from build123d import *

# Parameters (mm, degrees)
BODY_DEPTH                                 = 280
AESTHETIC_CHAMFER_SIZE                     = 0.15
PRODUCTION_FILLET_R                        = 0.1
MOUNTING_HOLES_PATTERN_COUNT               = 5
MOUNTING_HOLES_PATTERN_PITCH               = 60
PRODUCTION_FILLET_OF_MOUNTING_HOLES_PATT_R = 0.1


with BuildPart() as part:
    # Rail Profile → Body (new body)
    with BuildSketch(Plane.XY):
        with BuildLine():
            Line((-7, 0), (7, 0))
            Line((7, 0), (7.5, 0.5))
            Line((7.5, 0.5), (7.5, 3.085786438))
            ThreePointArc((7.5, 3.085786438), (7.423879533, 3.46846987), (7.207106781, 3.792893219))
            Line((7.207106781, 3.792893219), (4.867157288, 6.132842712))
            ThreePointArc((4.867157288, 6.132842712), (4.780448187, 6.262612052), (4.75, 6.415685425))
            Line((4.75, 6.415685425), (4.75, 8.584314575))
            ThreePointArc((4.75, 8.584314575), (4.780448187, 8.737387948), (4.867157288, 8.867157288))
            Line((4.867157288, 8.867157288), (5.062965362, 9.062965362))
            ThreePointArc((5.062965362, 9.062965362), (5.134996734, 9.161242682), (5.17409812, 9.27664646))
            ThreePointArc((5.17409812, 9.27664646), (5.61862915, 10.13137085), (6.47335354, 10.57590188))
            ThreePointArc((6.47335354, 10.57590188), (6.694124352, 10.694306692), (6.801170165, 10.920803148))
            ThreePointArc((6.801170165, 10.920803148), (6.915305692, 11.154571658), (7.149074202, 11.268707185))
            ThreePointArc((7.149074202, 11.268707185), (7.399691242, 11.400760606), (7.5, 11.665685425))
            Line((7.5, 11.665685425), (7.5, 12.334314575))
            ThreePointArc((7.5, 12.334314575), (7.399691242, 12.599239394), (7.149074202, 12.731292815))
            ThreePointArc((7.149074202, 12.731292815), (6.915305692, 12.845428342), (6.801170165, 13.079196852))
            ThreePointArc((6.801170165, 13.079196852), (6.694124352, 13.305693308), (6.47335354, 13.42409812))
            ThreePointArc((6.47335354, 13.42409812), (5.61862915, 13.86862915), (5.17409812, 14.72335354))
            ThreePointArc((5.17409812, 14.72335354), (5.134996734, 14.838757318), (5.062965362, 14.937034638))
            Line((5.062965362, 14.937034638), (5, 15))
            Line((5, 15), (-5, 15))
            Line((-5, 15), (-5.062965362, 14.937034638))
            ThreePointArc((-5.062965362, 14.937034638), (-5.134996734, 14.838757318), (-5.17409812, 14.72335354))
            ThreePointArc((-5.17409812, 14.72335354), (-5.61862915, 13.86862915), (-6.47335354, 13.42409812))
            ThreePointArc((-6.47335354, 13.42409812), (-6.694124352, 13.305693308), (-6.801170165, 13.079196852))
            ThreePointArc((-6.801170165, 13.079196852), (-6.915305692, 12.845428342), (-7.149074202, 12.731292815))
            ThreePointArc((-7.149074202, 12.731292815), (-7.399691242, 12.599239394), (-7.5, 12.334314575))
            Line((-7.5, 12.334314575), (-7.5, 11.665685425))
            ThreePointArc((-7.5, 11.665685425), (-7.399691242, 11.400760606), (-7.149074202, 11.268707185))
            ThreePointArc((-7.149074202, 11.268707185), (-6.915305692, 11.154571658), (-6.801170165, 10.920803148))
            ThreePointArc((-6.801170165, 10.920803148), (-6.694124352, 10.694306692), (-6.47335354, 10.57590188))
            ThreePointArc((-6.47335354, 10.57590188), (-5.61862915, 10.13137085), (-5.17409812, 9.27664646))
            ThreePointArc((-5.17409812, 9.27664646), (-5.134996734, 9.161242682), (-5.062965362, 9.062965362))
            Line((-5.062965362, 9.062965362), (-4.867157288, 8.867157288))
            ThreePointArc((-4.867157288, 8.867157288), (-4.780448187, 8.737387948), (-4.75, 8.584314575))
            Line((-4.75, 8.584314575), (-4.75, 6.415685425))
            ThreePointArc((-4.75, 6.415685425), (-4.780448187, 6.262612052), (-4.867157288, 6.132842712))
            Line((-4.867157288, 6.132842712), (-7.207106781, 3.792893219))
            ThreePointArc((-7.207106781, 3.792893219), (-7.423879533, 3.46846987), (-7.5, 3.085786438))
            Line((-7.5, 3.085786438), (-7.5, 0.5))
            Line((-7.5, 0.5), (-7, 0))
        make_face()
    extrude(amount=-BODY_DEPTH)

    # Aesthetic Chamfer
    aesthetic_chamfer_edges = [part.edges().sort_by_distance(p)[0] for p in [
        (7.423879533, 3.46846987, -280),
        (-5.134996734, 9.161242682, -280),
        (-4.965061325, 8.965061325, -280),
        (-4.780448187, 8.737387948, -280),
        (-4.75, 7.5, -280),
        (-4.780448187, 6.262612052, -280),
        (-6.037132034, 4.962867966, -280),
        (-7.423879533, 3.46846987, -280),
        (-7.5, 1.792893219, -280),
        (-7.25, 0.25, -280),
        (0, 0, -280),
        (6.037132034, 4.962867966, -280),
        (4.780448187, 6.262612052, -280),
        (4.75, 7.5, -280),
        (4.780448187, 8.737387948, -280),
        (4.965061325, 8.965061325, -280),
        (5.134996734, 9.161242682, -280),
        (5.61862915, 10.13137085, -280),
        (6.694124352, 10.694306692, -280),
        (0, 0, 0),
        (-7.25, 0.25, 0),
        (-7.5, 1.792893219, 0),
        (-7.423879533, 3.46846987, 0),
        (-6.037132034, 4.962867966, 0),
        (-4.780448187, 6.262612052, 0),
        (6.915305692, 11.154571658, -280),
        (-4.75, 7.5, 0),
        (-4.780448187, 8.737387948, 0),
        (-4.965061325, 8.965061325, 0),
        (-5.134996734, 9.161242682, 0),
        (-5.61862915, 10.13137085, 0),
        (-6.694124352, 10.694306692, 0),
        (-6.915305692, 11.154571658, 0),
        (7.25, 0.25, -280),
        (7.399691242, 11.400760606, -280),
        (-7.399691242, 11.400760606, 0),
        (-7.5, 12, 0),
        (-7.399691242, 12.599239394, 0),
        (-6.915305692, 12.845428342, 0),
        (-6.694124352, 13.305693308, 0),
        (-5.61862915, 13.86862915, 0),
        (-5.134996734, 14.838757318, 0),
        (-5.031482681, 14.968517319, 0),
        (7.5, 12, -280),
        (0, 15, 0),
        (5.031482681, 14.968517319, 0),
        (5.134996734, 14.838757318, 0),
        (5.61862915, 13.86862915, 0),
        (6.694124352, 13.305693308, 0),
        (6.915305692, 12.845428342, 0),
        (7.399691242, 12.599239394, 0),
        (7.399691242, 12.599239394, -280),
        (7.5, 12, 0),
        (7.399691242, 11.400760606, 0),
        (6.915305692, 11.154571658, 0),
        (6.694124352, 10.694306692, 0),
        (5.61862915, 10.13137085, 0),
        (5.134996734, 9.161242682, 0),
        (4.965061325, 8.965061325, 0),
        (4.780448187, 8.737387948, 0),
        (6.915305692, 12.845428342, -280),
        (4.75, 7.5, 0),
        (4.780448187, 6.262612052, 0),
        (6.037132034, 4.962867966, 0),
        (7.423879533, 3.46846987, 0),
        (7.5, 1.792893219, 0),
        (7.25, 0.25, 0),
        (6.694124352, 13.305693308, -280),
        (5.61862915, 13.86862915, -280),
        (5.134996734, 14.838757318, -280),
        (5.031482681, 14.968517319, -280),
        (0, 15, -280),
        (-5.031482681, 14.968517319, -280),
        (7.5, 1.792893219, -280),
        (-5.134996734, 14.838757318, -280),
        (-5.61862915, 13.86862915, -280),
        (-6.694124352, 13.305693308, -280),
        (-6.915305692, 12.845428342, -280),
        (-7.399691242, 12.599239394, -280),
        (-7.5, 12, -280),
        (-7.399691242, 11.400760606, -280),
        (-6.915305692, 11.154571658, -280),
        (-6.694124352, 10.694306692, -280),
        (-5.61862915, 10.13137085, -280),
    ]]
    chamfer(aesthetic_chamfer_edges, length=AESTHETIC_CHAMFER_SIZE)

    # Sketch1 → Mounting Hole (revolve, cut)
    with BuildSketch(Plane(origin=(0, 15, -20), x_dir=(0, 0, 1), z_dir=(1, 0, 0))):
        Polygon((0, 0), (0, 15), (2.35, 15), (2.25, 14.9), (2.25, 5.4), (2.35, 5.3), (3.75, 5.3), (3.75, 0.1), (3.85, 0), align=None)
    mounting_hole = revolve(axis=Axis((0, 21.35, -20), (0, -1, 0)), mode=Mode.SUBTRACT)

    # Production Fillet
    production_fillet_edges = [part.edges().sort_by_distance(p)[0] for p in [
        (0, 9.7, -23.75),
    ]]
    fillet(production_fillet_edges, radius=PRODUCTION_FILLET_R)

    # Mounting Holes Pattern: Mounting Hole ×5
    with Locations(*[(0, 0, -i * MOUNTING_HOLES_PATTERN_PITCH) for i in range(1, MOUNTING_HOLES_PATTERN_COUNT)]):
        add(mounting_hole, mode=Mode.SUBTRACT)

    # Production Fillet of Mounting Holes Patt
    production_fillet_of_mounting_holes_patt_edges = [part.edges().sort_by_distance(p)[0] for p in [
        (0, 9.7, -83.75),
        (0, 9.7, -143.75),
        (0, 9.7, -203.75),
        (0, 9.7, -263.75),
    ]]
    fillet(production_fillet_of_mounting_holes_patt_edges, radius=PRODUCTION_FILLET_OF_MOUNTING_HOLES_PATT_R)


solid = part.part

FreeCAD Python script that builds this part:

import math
import FreeCAD as App
import Part
import Sketcher
from FreeCAD import Vector
Q = App.Units.Quantity


def edges_at(feature, points):
    """Names of the edges that pass closest to the given points."""
    edges = feature.Shape.Edges
    near = lambda p: min(range(len(edges)), key=lambda i: edges[i].distToShape(Part.Vertex(*p))[0])
    return sorted({f"Edge{near(p) + 1}" for p in points})


def add_polygon(sketch, points):
    """Adds a closed chain of lines whose ends are joined by coincident constraints."""
    first, n = sketch.GeometryCount, len(points)
    for a, b in zip(points, points[1:] + points[:1]):
        sketch.addGeometry(Part.LineSegment(App.Vector(*a, 0), App.Vector(*b, 0)), False)
    for i in range(n):
        sketch.addConstraint(Sketcher.Constraint("Coincident", first + i, 2, first + (i + 1) % n, 1))

doc = App.newDocument("Part")
body = doc.addObject("PartDesign::Body", "Body")

# Sketch on XY plane
sketch1 = body.newObject("Sketcher::SketchObject", "Sketch")
sketch1.AttachmentSupport = (doc.getObject("XY_Plane"), [""])
sketch1.MapMode = "FlatFace"
sketch1.addGeometry([
    Part.LineSegment(Vector(-7, 0, 0), Vector(7, 0, 0)),  # 0
    Part.LineSegment(Vector(7, 0, 0), Vector(7.5, 0.5, 0)),  # 1
    Part.LineSegment(Vector(7.5, 0.5, 0), Vector(7.5, 3.085786, 0)),  # 2
    Part.ArcOfCircle(Part.Circle(Vector(6.5, 3.085786, 0), Vector(0, 0, 1), 1), math.radians(0), math.radians(45)),  # 3
    Part.LineSegment(Vector(7.207107, 3.792893, 0), Vector(4.867157, 6.132843, 0)),  # 4
    Part.ArcOfCircle(Part.Circle(Vector(5.15, 6.415685, 0), Vector(0, 0, 1), 0.4), math.radians(180), math.radians(225)),  # 5
    Part.LineSegment(Vector(4.75, 6.415685, 0), Vector(4.75, 8.584315, 0)),  # 6
    Part.ArcOfCircle(Part.Circle(Vector(5.15, 8.584315, 0), Vector(0, 0, 1), 0.4), math.radians(135), math.radians(180)),  # 7
    Part.LineSegment(Vector(4.867157, 8.867157, 0), Vector(5.062965, 9.062965, 0)),  # 8
    Part.ArcOfCircle(Part.Circle(Vector(4.780123, 9.345808, 0), Vector(0, 0, 1), 0.4), math.radians(-45), math.radians(-9.956709)),  # 9
    Part.ArcOfCircle(Part.Circle(Vector(6.75, 9, 0), Vector(0, 0, 1), 1.6), math.radians(99.956709), math.radians(170.043291)),  # 10
    Part.ArcOfCircle(Part.Circle(Vector(6.404192, 10.969877, 0), Vector(0, 0, 1), 0.4), math.radians(-80.043291), math.radians(-7.047116)),  # 11
    Part.ArcOfCircle(Part.Circle(Vector(7.198148, 10.871729, 0), Vector(0, 0, 1), 0.4), math.radians(97.047116), math.radians(172.952884)),  # 12
    Part.ArcOfCircle(Part.Circle(Vector(7.1, 11.665685, 0), Vector(0, 0, 1), 0.4), math.radians(-82.952884), math.radians(0)),  # 13
    Part.LineSegment(Vector(7.5, 11.665685, 0), Vector(7.5, 12.334315, 0)),  # 14
    Part.ArcOfCircle(Part.Circle(Vector(7.1, 12.334315, 0), Vector(0, 0, 1), 0.4), math.radians(0), math.radians(82.952884)),  # 15
    Part.ArcOfCircle(Part.Circle(Vector(7.198148, 13.128271, 0), Vector(0, 0, 1), 0.4), math.radians(-172.952884), math.radians(-97.047116)),  # 16
    Part.ArcOfCircle(Part.Circle(Vector(6.404192, 13.030123, 0), Vector(0, 0, 1), 0.4), math.radians(7.047116), math.radians(80.043291)),  # 17
    Part.ArcOfCircle(Part.Circle(Vector(6.75, 15, 0), Vector(0, 0, 1), 1.6), math.radians(-170.043291), math.radians(-99.956709)),  # 18
    Part.ArcOfCircle(Part.Circle(Vector(4.780123, 14.654192, 0), Vector(0, 0, 1), 0.4), math.radians(9.956709), math.radians(45)),  # 19
    Part.LineSegment(Vector(5.062965, 14.937035, 0), Vector(5, 15, 0)),  # 20
    Part.LineSegment(Vector(5, 15, 0), Vector(-5, 15, 0)),  # 21
    Part.LineSegment(Vector(-5, 15, 0), Vector(-5.062965, 14.937035, 0)),  # 22
    Part.ArcOfCircle(Part.Circle(Vector(-4.780123, 14.654192, 0), Vector(0, 0, 1), 0.4), math.radians(135), math.radians(170.043291)),  # 23
    Part.ArcOfCircle(Part.Circle(Vector(-6.75, 15, 0), Vector(0, 0, 1), 1.6), math.radians(-80.043291), math.radians(-9.956709)),  # 24
    Part.ArcOfCircle(Part.Circle(Vector(-6.404192, 13.030123, 0), Vector(0, 0, 1), 0.4), math.radians(99.956709), math.radians(172.952884)),  # 25
    Part.ArcOfCircle(Part.Circle(Vector(-7.198148, 13.128271, 0), Vector(0, 0, 1), 0.4), math.radians(-82.952884), math.radians(-7.047116)),  # 26
    Part.ArcOfCircle(Part.Circle(Vector(-7.1, 12.334315, 0), Vector(0, 0, 1), 0.4), math.radians(97.047116), math.radians(180)),  # 27
    Part.LineSegment(Vector(-7.5, 12.334315, 0), Vector(-7.5, 11.665685, 0)),  # 28
    Part.ArcOfCircle(Part.Circle(Vector(-7.1, 11.665685, 0), Vector(0, 0, 1), 0.4), math.radians(180), math.radians(262.952884)),  # 29
    Part.ArcOfCircle(Part.Circle(Vector(-7.198148, 10.871729, 0), Vector(0, 0, 1), 0.4), math.radians(7.047116), math.radians(82.952884)),  # 30
    Part.ArcOfCircle(Part.Circle(Vector(-6.404192, 10.969877, 0), Vector(0, 0, 1), 0.4), math.radians(-172.952884), math.radians(-99.956709)),  # 31
    Part.ArcOfCircle(Part.Circle(Vector(-6.75, 9, 0), Vector(0, 0, 1), 1.6), math.radians(9.956709), math.radians(80.043291)),  # 32
    Part.ArcOfCircle(Part.Circle(Vector(-4.780123, 9.345808, 0), Vector(0, 0, 1), 0.4), math.radians(-170.043291), math.radians(-135)),  # 33
    Part.LineSegment(Vector(-5.062965, 9.062965, 0), Vector(-4.867157, 8.867157, 0)),  # 34
    Part.ArcOfCircle(Part.Circle(Vector(-5.15, 8.584315, 0), Vector(0, 0, 1), 0.4), math.radians(0), math.radians(45)),  # 35
    Part.LineSegment(Vector(-4.75, 8.584315, 0), Vector(-4.75, 6.415685, 0)),  # 36
    Part.ArcOfCircle(Part.Circle(Vector(-5.15, 6.415685, 0), Vector(0, 0, 1), 0.4), math.radians(-45), math.radians(0)),  # 37
    Part.LineSegment(Vector(-4.867157, 6.132843, 0), Vector(-7.207107, 3.792893, 0)),  # 38
    Part.ArcOfCircle(Part.Circle(Vector(-6.5, 3.085786, 0), Vector(0, 0, 1), 1), math.radians(135), math.radians(180)),  # 39
    Part.LineSegment(Vector(-7.5, 3.085786, 0), Vector(-7.5, 0.5, 0)),  # 40
    Part.LineSegment(Vector(-7.5, 0.5, 0), Vector(-7, 0, 0)),  # 41
], False)
sketch1.addConstraint([
    Sketcher.Constraint("Coincident", 0, 2, 1, 1),
    Sketcher.Constraint("Coincident", 1, 2, 2, 1),
    Sketcher.Constraint("Tangent", 2, 2, 3, 1),
    Sketcher.Constraint("Tangent", 3, 2, 4, 1),
    Sketcher.Constraint("Tangent", 4, 2, 5, 2),
    Sketcher.Constraint("Tangent", 5, 1, 6, 1),
    Sketcher.Constraint("Tangent", 6, 2, 7, 2),
    Sketcher.Constraint("Tangent", 7, 1, 8, 1),
    Sketcher.Constraint("Tangent", 8, 2, 9, 1),
    Sketcher.Constraint("Tangent", 9, 2, 10, 2),
    Sketcher.Constraint("Tangent", 10, 1, 11, 1),
    Sketcher.Constraint("Tangent", 11, 2, 12, 2),
    Sketcher.Constraint("Tangent", 12, 1, 13, 1),
    Sketcher.Constraint("Tangent", 13, 2, 14, 1),
    Sketcher.Constraint("Tangent", 14, 2, 15, 1),
    Sketcher.Constraint("Tangent", 15, 2, 16, 2),
    Sketcher.Constraint("Tangent", 16, 1, 17, 1),
    Sketcher.Constraint("Tangent", 17, 2, 18, 2),
    Sketcher.Constraint("Tangent", 18, 1, 19, 1),
    Sketcher.Constraint("Tangent", 19, 2, 20, 1),
    Sketcher.Constraint("Coincident", 20, 2, 21, 1),
    Sketcher.Constraint("Coincident", 21, 2, 22, 1),
    Sketcher.Constraint("Tangent", 22, 2, 23, 1),
    Sketcher.Constraint("Tangent", 23, 2, 24, 2),
    Sketcher.Constraint("Tangent", 24, 1, 25, 1),
    Sketcher.Constraint("Tangent", 25, 2, 26, 2),
    Sketcher.Constraint("Tangent", 26, 1, 27, 1),
    Sketcher.Constraint("Tangent", 27, 2, 28, 1),
    Sketcher.Constraint("Tangent", 28, 2, 29, 1),
    Sketcher.Constraint("Tangent", 29, 2, 30, 2),
    Sketcher.Constraint("Tangent", 30, 1, 31, 1),
    Sketcher.Constraint("Tangent", 31, 2, 32, 2),
    Sketcher.Constraint("Tangent", 32, 1, 33, 1),
    Sketcher.Constraint("Tangent", 33, 2, 34, 1),
    Sketcher.Constraint("Tangent", 34, 2, 35, 2),
    Sketcher.Constraint("Tangent", 35, 1, 36, 1),
    Sketcher.Constraint("Tangent", 36, 2, 37, 2),
    Sketcher.Constraint("Tangent", 37, 1, 38, 1),
    Sketcher.Constraint("Tangent", 38, 2, 39, 1),
    Sketcher.Constraint("Tangent", 39, 2, 40, 1),
    Sketcher.Constraint("Coincident", 40, 2, 41, 1),
    Sketcher.Constraint("Coincident", 41, 2, 0, 1),
    Sketcher.Constraint("Horizontal", 0),
    Sketcher.Constraint("Vertical", 2),
    Sketcher.Constraint("Vertical", 6),
    Sketcher.Constraint("Vertical", 14),
    Sketcher.Constraint("Horizontal", 21),
    Sketcher.Constraint("Vertical", 28),
    Sketcher.Constraint("Vertical", 36),
    Sketcher.Constraint("Vertical", 40),
    Sketcher.Constraint("Equal", 5, 7),
    Sketcher.Constraint("Equal", 7, 9),
    Sketcher.Constraint("Equal", 9, 11),
    Sketcher.Constraint("Equal", 11, 12),
    Sketcher.Constraint("Equal", 12, 13),
    Sketcher.Constraint("Equal", 13, 15),
    Sketcher.Constraint("Equal", 15, 16),
    Sketcher.Constraint("Equal", 16, 17),
    Sketcher.Constraint("Equal", 10, 18),
    Sketcher.Constraint("Equal", 17, 19),
    Sketcher.Constraint("Equal", 19, 23),
    Sketcher.Constraint("Equal", 18, 24),
    Sketcher.Constraint("Equal", 23, 25),
    Sketcher.Constraint("Equal", 25, 26),
    Sketcher.Constraint("Equal", 26, 27),
    Sketcher.Constraint("Equal", 27, 29),
    Sketcher.Constraint("Equal", 29, 30),
    Sketcher.Constraint("Equal", 30, 31),
    Sketcher.Constraint("Equal", 24, 32),
    Sketcher.Constraint("Equal", 31, 33),
    Sketcher.Constraint("Equal", 33, 35),
    Sketcher.Constraint("Equal", 35, 37),
    Sketcher.Constraint("Equal", 3, 39),
    Sketcher.Constraint("Symmetric", 0, 2, 41, 2, -1, 1),
    Sketcher.Constraint("Symmetric", 19, 3, 23, 3, -2),
    Sketcher.Constraint("Symmetric", 17, 3, 25, 3, -2),
    Sketcher.Constraint("Symmetric", 15, 3, 27, 3, -2),
    Sketcher.Constraint("Symmetric", 12, 3, 30, 3, -2),
    Sketcher.Constraint("Symmetric", 10, 3, 32, 3, -2),
    Sketcher.Constraint("Symmetric", 7, 3, 35, 3, -2),
    Sketcher.Constraint("Symmetric", 3, 3, 39, 3, -2),
    Sketcher.Constraint("Perpendicular", 1, 4),
    Sketcher.Constraint("Perpendicular", 4, 8),
    Sketcher.Constraint("Perpendicular", 8, 20),
    Sketcher.Constraint("Perpendicular", 20, 22),
    Sketcher.Constraint("Perpendicular", 22, 34),
    Sketcher.Constraint("Perpendicular", 34, 38),
    Sketcher.Constraint("Perpendicular", 38, 41),
    Sketcher.Constraint("Horizontal", 9, 3, 33, 3),
    Sketcher.Constraint("Horizontal", 24, 3, 20, 2),
    Sketcher.Constraint("Vertical", 12, 3, 16, 3),
    Sketcher.Constraint("Vertical", 11, 3, 17, 3),
    Sketcher.Constraint("Vertical", 10, 3, 18, 3),
    Sketcher.Constraint("Vertical", 9, 3, 19, 3),
    Sketcher.Constraint("Vertical", 2, 2, 13, 2),
    Sketcher.Constraint("Radius", 3, Q("1 mm")),
    Sketcher.Constraint("Radius", 5, Q("0.4 mm")),
    Sketcher.Constraint("Radius", 10, Q("1.6 mm")),
    Sketcher.Constraint("DistanceX", 0, 1, 0, 2, Q("14 mm")),
    Sketcher.Constraint("DistanceX", 21, 2, 21, 1, Q("10 mm")),
    Sketcher.Constraint("DistanceY", -1, 1, 10, 3, Q("9 mm")),
    Sketcher.Constraint("DistanceY", -1, 1, 18, 3, Q("15 mm")),
    Sketcher.Constraint("DistanceX", -1, 1, 3, 3, Q("6.5 mm")),
    Sketcher.Constraint("DistanceX", -1, 1, 5, 3, Q("5.15 mm")),
    Sketcher.Constraint("DistanceX", -1, 1, 10, 3, Q("6.75 mm")),
    Sketcher.Constraint("DistanceY", 6, 1, 6, 2, Q("2.168629 mm")),
    Sketcher.Constraint("DistanceY", 14, 1, 14, 2, Q("0.668629 mm")),
    Sketcher.Constraint("DistanceY", -1, 1, 10, 1, Q("10.575902 mm")),
])
pad1 = body.newObject("PartDesign::Pad", "Pad")
pad1.Profile = sketch1
pad1.Length = 280
pad1.Reversed = True
doc.recompute()

chamfer = body.newObject("PartDesign::Chamfer", "Chamfer")
chamfer.Base = (pad1, edges_at(pad1, [
    (7.424, 3.468, -280),
    (-5.135, 9.161, -280),
    (-4.965, 8.965, -280),
    (-4.78, 8.737, -280),
    (-4.75, 7.5, -280),
    (-4.78, 6.263, -280),
    (-6.037, 4.963, -280),
    (-7.424, 3.468, -280),
    (-7.5, 1.793, -280),
    (-7.25, 0.25, -280),
    (0, 0, -280),
    (6.037, 4.963, -280),
    (4.78, 6.263, -280),
    (4.75, 7.5, -280),
    (4.78, 8.737, -280),
    (4.965, 8.965, -280),
    (5.135, 9.161, -280),
    (5.619, 10.131, -280),
    (6.694, 10.694, -280),
    (0, 0, 0),
    (-7.25, 0.25, 0),
    (-7.5, 1.793, 0),
    (-7.424, 3.468, 0),
    (-6.037, 4.963, 0),
    (-4.78, 6.263, 0),
    (6.915, 11.155, -280),
    (-4.75, 7.5, 0),
    (-4.78, 8.737, 0),
    (-4.965, 8.965, 0),
    (-5.135, 9.161, 0),
    (-5.619, 10.131, 0),
    (-6.694, 10.694, 0),
    (-6.915, 11.155, 0),
    (7.25, 0.25, -280),
    (7.4, 11.401, -280),
    (-7.4, 11.401, 0),
    (-7.5, 12, 0),
    (-7.4, 12.599, 0),
    (-6.915, 12.845, 0),
    (-6.694, 13.306, 0),
    (-5.619, 13.869, 0),
    (-5.135, 14.839, 0),
    (-5.031, 14.969, 0),
    (7.5, 12, -280),
    (0, 15, 0),
    (5.031, 14.969, 0),
    (5.135, 14.839, 0),
    (5.619, 13.869, 0),
    (6.694, 13.306, 0),
    (6.915, 12.845, 0),
    (7.4, 12.599, 0),
    (7.4, 12.599, -280),
    (7.5, 12, 0),
    (7.4, 11.401, 0),
    (6.915, 11.155, 0),
    (6.694, 10.694, 0),
    (5.619, 10.131, 0),
    (5.135, 9.161, 0),
    (4.965, 8.965, 0),
    (4.78, 8.737, 0),
    (6.915, 12.845, -280),
    (4.75, 7.5, 0),
    (4.78, 6.263, 0),
    (6.037, 4.963, 0),
    (7.424, 3.468, 0),
    (7.5, 1.793, 0),
    (7.25, 0.25, 0),
    (6.694, 13.306, -280),
    (5.619, 13.869, -280),
    (5.135, 14.839, -280),
    (5.031, 14.969, -280),
    (0, 15, -280),
    (-5.031, 14.969, -280),
    (7.5, 1.793, -280),
    (-5.135, 14.839, -280),
    (-5.619, 13.869, -280),
    (-6.694, 13.306, -280),
    (-6.915, 12.845, -280),
    (-7.4, 12.599, -280),
    (-7.5, 12, -280),
    (-7.4, 11.401, -280),
    (-6.915, 11.155, -280),
    (-6.694, 10.694, -280),
    (-5.619, 10.131, -280),
]))
chamfer.Size = 0.15

# Sketch on YZ plane
sketch2 = body.newObject("Sketcher::SketchObject", "Sketch001")
sketch2.AttachmentSupport = (doc.getObject("YZ_Plane"), [""])
sketch2.MapMode = "FlatFace"
add_polygon(sketch2, [(0, -20), (15, -20), (15, -16.15), (14.9, -16.25), (9.7, -16.25), (9.7, -17.65), (9.6, -17.75), (0.1, -17.75), (0, -17.65)])  # lines 0-8
sketch2.addGeometry(Part.LineSegment(Vector(15, -20, 0), Vector(0, -20, 0)), True)  # axis
sketch2.addConstraint([
    Sketcher.Constraint("Horizontal", 0),
    Sketcher.Constraint("Vertical", 1),
    Sketcher.Constraint("Horizontal", 3),
    Sketcher.Constraint("Vertical", 4),
    Sketcher.Constraint("Horizontal", 6),
    Sketcher.Constraint("Vertical", 8),
    Sketcher.Constraint("Horizontal", 9),
    Sketcher.Constraint("Coincident", 9, 1, 0, 2),
    Sketcher.Constraint("PointOnObject", 7, 2, -2),
    Sketcher.Constraint("PointOnObject", 9, 2, -2),
    Sketcher.Constraint("Parallel", 2, 5),
    Sketcher.Constraint("Perpendicular", 5, 7),
    Sketcher.Constraint("Horizontal", 4, 2, 7, 2),
    Sketcher.Constraint("Equal", 2, 5),
    Sketcher.Constraint("Equal", 5, 7),
    Sketcher.Constraint("DistanceX", 0, 1, 0, 2, Q("15 mm")),
    Sketcher.Constraint("DistanceX", 3, 2, 3, 1, Q("5.2 mm")),
    Sketcher.Constraint("DistanceX", 6, 2, 6, 1, Q("9.5 mm")),
    Sketcher.Constraint("DistanceY", 4, 2, 4, 1, Q("1.4 mm")),
    Sketcher.Constraint("DistanceY", 0, 2, -1, 1, Q("20 mm")),
    Sketcher.Constraint("DistanceY", 1, 1, 1, 2, Q("3.85 mm")),
])
groove = body.newObject("PartDesign::Groove", "Groove")
groove.Profile = sketch2
groove.ReferenceAxis = (sketch2, ["Axis0"])
groove.Angle = 360
doc.recompute()

fillet = body.newObject("PartDesign::Fillet", "Fillet")
fillet.Base = (groove, edges_at(groove, [(0, 9.7, -23.75)]))
fillet.Radius = 0.1
doc.recompute()

linearpattern = body.newObject("PartDesign::LinearPattern", "LinearPattern")
linearpattern.Originals = [groove]
linearpattern.Direction = (doc.getObject("Z_Axis"), [""])
linearpattern.Mode = "offset"
linearpattern.Offset = 60
linearpattern.Occurrences = 5
linearpattern.Reversed = True
body.Tip = linearpattern
doc.recompute()

fillet2 = body.newObject("PartDesign::Fillet", "Fillet001")
fillet2.Base = (linearpattern, edges_at(linearpattern, [
    (0, 9.7, -83.75),
    (0, 9.7, -143.75),
    (0, 9.7, -203.75),
    (0, 9.7, -263.75),
]))
fillet2.Radius = 0.1

doc.recompute()
